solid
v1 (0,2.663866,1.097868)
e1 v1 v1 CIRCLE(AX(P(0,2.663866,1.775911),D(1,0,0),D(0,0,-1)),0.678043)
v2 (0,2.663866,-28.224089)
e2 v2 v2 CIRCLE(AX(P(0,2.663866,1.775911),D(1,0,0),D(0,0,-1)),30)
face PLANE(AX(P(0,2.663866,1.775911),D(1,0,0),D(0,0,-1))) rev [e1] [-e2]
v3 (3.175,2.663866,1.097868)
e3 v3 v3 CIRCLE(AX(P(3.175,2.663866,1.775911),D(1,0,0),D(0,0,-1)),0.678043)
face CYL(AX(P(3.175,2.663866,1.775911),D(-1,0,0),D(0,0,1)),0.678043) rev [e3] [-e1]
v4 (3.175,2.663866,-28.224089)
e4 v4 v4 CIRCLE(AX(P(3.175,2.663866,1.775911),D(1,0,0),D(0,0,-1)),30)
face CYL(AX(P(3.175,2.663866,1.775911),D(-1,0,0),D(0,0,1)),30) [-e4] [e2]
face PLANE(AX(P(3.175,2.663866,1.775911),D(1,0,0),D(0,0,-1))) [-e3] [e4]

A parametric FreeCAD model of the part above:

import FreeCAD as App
import Part
import Sketcher
Q = App.Units.Quantity

doc = App.newDocument("Part")
body = doc.addObject("PartDesign::Body", "Body")

# Sketch on YZ plane
sketch1 = doc.addObject("Sketcher::SketchObject", "Sketch")
body.addObject(sketch1)
sketch1.AttachmentSupport = (doc.YZ_Plane, [""])
sketch1.MapMode = "FlatFace"
sketch1.addGeometry(Part.Circle(App.Vector(2.7, 1.8, 0), App.Vector(0, 0, 1), 30), False)
sketch1.addGeometry(Part.Circle(App.Vector(2.7, 1.8, 0), App.Vector(0, 0, 1), 0.7), False)
sketch1.addConstraint(Sketcher.Constraint("Coincident", 1, 3, 0, 3))
sketch1.addConstraint(Sketcher.Constraint("Diameter", 0, Q("60 mm")))
sketch1.addConstraint(Sketcher.Constraint("Diameter", 1, Q("1.356086 mm")))
sketch1.addConstraint(Sketcher.Constraint("DistanceY", -1, 1, 0, 3, Q("1.775911 mm")))
sketch1.addConstraint(Sketcher.Constraint("DistanceX", -1, 1, 0, 3, Q("2.663866 mm")))
pad1 = doc.addObject("PartDesign::Pad", "Pad")
body.addObject(pad1)
pad1.Profile = sketch1
pad1.Length = 3.175

doc.recompute()
